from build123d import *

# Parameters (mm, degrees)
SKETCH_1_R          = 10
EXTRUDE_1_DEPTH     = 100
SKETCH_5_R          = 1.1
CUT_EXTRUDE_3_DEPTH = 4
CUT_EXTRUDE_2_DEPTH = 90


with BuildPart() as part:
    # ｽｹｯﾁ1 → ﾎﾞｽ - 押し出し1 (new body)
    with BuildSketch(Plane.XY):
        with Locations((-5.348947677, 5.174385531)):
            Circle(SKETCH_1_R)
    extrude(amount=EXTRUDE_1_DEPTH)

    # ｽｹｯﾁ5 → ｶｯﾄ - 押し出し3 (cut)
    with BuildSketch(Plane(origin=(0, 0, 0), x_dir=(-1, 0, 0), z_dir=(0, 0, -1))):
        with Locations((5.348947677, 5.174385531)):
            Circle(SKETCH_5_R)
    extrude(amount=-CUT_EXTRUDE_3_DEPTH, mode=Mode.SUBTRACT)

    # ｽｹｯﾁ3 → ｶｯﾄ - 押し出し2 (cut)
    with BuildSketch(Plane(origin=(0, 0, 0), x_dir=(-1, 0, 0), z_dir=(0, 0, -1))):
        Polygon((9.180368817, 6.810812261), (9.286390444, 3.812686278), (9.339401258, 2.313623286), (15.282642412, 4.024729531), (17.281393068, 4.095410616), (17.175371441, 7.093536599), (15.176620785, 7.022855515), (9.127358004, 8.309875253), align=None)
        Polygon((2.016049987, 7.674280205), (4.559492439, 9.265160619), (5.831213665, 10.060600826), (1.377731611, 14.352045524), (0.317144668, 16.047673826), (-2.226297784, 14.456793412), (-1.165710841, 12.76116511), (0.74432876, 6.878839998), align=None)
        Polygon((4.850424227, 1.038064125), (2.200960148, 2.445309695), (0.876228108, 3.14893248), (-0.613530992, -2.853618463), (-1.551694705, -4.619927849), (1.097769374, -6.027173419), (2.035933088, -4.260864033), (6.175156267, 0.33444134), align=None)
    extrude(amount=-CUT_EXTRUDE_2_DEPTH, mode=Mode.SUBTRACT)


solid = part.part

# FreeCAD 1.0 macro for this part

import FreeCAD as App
import Part
import Sketcher

V = App.Vector
Q = App.Units.Quantity


def add_polygon(sketch, points):
    """Adds a closed chain of lines whose ends are joined by coincident constraints."""
    first, n = sketch.GeometryCount, len(points)
    for a, b in zip(points, points[1:] + points[:1]):
        sketch.addGeometry(Part.LineSegment(App.Vector(*a, 0), App.Vector(*b, 0)), False)
    for i in range(n):
        sketch.addConstraint(Sketcher.Constraint("Coincident", first + i, 2, first + (i + 1) % n, 1))

doc = App.newDocument("Part")
body = doc.addObject("PartDesign::Body", "Body")

sketch1 = body.newObject("Sketcher::SketchObject", "Sketch")
sketch1.AttachmentSupport = (doc.getObject("XY_Plane"), [""])
sketch1.MapMode = "FlatFace"
sketch1.addGeometry(Part.Circle(V(-5, 5, 0), V(0, 0, 1), 10), False)
sketch1.addConstraint(Sketcher.Constraint("Diameter", 0, Q("20 mm")))
sketch1.addConstraint(Sketcher.Constraint("DistanceX", 0, 3, -1, 1, Q("5.348948 mm")))
sketch1.addConstraint(Sketcher.Constraint("DistanceY", -1, 1, 0, 3, Q("5.174386 mm")))
pad1 = body.newObject("PartDesign::Pad", "Pad")
pad1.Profile = sketch1
pad1.Length = 100

sketch2 = body.newObject("Sketcher::SketchObject", "Sketch001")
sketch2.AttachmentSupport = (doc.getObject("XY_Plane"), [""])
sketch2.MapMode = "FlatFace"
sketch2.addGeometry(Part.Circle(V(-5.3, 5.2, 0), V(0, 0, 1), 1.1), False)
sketch2.addConstraint(Sketcher.Constraint("Diameter", 0, Q("2.2 mm")))
sketch2.addConstraint(Sketcher.Constraint("DistanceX", 0, 3, -1, 1, Q("5.348948 mm")))
sketch2.addConstraint(Sketcher.Constraint("DistanceY", -1, 1, 0, 3, Q("5.174386 mm")))
pocket1 = body.newObject("PartDesign::Pocket", "Pocket")
pocket1.Profile = sketch2
pocket1.Length = 4
pocket1.Reversed = True

sketch3 = body.newObject("Sketcher::SketchObject", "Sketch002")
sketch3.AttachmentSupport = (doc.getObject("XY_Plane"), [""])
sketch3.MapMode = "FlatFace"
add_polygon(sketch3, [(-9.2, 6.8), (-9.3, 3.8), (-9.3, 2.3), (-15.3, 4), (-17.3, 4.1), (-17.2, 7.1), (-15.2, 7), (-9.1, 8.3)])
add_polygon(sketch3, [(-2, 7.7), (-5.8, 10.1), (-1.4, 14.4), (-0.3, 16), (2.2, 14.5), (1.2, 12.8), (-0.7, 6.9)])
add_polygon(sketch3, [(-4.9, 1), (-2.2, 2.4), (-0.9, 3.1), (0.6, -2.9), (1.6, -4.6), (-1.1, -6), (-2, -4.3), (-6.2, 0.3)])
sketch3.addConstraint(Sketcher.Constraint("Parallel", 0, 1))
sketch3.addConstraint(Sketcher.Constraint("Perpendicular", 1, 3))
sketch3.addConstraint(Sketcher.Constraint("Perpendicular", 3, 4))
sketch3.addConstraint(Sketcher.Constraint("Perpendicular", 4, 5))
sketch3.addConstraint(Sketcher.Constraint("Perpendicular", 5, 7))
sketch3.addConstraint(Sketcher.Constraint("Perpendicular", 8, 10))
sketch3.addConstraint(Sketcher.Constraint("Perpendicular", 10, 11))
sketch3.addConstraint(Sketcher.Constraint("Perpendicular", 11, 12))
sketch3.addConstraint(Sketcher.Constraint("Perpendicular", 12, 14))
sketch3.addConstraint(Sketcher.Constraint("Parallel", 15, 16))
sketch3.addConstraint(Sketcher.Constraint("Perpendicular", 16, 18))
sketch3.addConstraint(Sketcher.Constraint("Perpendicular", 18, 19))
sketch3.addConstraint(Sketcher.Constraint("Perpendicular", 19, 20))
sketch3.addConstraint(Sketcher.Constraint("Perpendicular", 20, 22))
sketch3.addConstraint(Sketcher.Constraint("Equal", 0, 4))
sketch3.addConstraint(Sketcher.Constraint("Equal", 3, 5))
sketch3.addConstraint(Sketcher.Constraint("Equal", 2, 6))
sketch3.addConstraint(Sketcher.Constraint("Equal", 1, 7))
sketch3.addConstraint(Sketcher.Constraint("Equal", 6, 9))
sketch3.addConstraint(Sketcher.Constraint("Equal", 5, 10))
sketch3.addConstraint(Sketcher.Constraint("Equal", 4, 11))
sketch3.addConstraint(Sketcher.Constraint("Equal", 10, 12))
sketch3.addConstraint(Sketcher.Constraint("Equal", 9, 13))
sketch3.addConstraint(Sketcher.Constraint("Equal", 7, 14))
sketch3.addConstraint(Sketcher.Constraint("Equal", 11, 15))
sketch3.addConstraint(Sketcher.Constraint("Equal", 14, 16))
sketch3.addConstraint(Sketcher.Constraint("Equal", 13, 17))
sketch3.addConstraint(Sketcher.Constraint("Equal", 12, 18))
sketch3.addConstraint(Sketcher.Constraint("Equal", 15, 19))
sketch3.addConstraint(Sketcher.Constraint("Equal", 18, 20))
sketch3.addConstraint(Sketcher.Constraint("Equal", 17, 21))
sketch3.addConstraint(Sketcher.Constraint("Equal", 16, 22))
sketch3.addConstraint(Sketcher.Constraint("Distance", 0, Q("3 mm")))
sketch3.addConstraint(Sketcher.Constraint("Distance", 3, Q("2 mm")))
sketch3.addConstraint(Sketcher.Constraint("Distance", 1, Q("1.5 mm")))
sketch3.addConstraint(Sketcher.Constraint("Distance", 8, Q("4.5 mm")))
sketch3.addConstraint(Sketcher.Constraint("DistanceX", 1, 2, -1, 1, Q("9.339401 mm")))
sketch3.addConstraint(Sketcher.Constraint("DistanceY", -1, 1, 8, 2, Q("10.060601 mm")))
sketch3.addConstraint(Sketcher.Constraint("DistanceY", 6, 2, 10, 2, Q("7.737799 mm")))
sketch3.addConstraint(Sketcher.Constraint("DistanceX", 16, 2, 13, 2, Q("0.131899 mm")))
sketch3.addConstraint(Sketcher.Constraint("DistanceY", 17, 2, 14, 2, Q("10.527899 mm")))
sketch3.addConstraint(Sketcher.Constraint("DistanceX", 19, 2, 17, 2, Q("1.7113 mm")))
sketch3.addConstraint(Sketcher.Constraint("Distance", 2, Q("6.184658 mm")))
sketch3.addConstraint(Sketcher.Constraint("DistanceX", 0, 2, -1, 1, Q("9.28639 mm")))
sketch3.addConstraint(Sketcher.Constraint("DistanceY", -1, 1, 2, 2, Q("4.02473 mm")))
sketch3.addConstraint(Sketcher.Constraint("DistanceX", 9, 2, -1, 1, Q("1.377732 mm")))
pocket2 = body.newObject("PartDesign::Pocket", "Pocket001")
pocket2.Profile = sketch3
pocket2.Length = 90
pocket2.Reversed = True

doc.recompute()
